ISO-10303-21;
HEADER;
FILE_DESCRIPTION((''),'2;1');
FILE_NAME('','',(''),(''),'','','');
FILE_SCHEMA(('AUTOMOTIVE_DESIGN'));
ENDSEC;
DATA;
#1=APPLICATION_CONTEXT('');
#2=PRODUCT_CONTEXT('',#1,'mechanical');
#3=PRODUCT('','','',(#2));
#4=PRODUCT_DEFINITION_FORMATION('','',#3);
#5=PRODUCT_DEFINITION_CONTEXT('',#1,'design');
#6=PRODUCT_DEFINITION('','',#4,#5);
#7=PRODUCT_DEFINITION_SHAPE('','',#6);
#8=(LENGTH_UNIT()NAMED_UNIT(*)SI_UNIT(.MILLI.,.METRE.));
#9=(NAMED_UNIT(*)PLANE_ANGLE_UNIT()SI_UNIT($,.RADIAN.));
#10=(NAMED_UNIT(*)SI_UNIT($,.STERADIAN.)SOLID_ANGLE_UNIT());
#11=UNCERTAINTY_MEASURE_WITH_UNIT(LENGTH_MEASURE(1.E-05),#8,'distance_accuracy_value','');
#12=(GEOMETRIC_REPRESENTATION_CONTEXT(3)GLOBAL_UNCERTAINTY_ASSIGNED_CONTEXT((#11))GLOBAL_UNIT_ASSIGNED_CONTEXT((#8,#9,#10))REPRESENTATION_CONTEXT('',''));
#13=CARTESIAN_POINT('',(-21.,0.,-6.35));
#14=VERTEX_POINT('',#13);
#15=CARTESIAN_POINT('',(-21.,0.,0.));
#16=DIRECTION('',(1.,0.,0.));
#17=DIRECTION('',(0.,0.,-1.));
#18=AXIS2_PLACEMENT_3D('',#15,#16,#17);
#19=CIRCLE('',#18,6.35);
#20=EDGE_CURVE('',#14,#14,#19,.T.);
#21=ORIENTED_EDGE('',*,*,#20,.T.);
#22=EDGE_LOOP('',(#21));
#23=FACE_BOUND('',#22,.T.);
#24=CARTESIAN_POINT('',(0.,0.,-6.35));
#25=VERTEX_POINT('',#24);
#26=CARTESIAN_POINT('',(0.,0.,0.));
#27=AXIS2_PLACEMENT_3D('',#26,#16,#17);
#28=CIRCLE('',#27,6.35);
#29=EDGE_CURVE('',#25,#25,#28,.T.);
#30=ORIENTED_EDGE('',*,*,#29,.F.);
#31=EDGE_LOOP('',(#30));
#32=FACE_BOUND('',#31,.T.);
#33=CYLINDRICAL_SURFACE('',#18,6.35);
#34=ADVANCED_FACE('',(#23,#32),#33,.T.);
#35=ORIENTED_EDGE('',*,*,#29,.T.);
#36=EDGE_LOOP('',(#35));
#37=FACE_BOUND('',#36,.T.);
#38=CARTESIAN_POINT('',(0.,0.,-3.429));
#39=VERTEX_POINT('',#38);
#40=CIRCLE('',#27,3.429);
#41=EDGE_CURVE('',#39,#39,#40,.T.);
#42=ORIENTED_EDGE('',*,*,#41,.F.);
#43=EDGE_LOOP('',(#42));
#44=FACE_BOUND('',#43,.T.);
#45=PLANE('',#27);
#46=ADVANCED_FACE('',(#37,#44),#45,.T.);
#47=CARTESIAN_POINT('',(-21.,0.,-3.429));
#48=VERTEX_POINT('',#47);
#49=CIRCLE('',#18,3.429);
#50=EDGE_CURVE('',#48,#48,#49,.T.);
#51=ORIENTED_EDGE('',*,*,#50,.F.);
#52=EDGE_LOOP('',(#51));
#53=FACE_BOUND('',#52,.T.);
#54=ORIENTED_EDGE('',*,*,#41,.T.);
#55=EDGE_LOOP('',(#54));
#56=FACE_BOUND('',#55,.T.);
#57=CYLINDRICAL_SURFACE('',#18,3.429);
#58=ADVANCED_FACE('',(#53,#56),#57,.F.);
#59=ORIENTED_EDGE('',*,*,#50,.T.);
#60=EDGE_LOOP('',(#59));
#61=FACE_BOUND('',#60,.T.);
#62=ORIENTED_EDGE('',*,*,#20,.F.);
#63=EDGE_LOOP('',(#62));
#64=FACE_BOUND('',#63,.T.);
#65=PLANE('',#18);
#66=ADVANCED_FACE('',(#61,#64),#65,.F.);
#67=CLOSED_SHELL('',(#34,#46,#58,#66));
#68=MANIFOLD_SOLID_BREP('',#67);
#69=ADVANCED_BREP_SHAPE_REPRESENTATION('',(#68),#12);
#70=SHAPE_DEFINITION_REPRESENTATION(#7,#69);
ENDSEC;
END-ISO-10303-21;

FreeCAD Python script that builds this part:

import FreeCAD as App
import Part
import Sketcher
Q = App.Units.Quantity

doc = App.newDocument("Part")
body = doc.addObject("PartDesign::Body", "Body")

sketch1 = doc.addObject("Sketcher::SketchObject", "Sketch")
body.addObject(sketch1)
sketch1.AttachmentSupport = (doc.YZ_Plane, [""])
sketch1.MapMode = "FlatFace"
sketch1.addGeometry([
    Part.Circle(App.Vector(0, 0, 0), App.Vector(0, 0, 1), 6.3),
    Part.Circle(App.Vector(0, 0, 0), App.Vector(0, 0, 1), 3.4),
], False)
sketch1.addConstraint([
    Sketcher.Constraint("Coincident", 0, 3, -1, 1),
    Sketcher.Constraint("Coincident", 1, 3, -1, 1),
    Sketcher.Constraint("Diameter", 0, Q("0.5 in")),
    Sketcher.Constraint("Diameter", 1, Q("0.27 in")),
])
pad1 = doc.addObject("PartDesign::Pad", "Pad")
body.addObject(pad1)
pad1.Profile = sketch1
pad1.Length = 21
pad1.Reversed = True

doc.recompute()
